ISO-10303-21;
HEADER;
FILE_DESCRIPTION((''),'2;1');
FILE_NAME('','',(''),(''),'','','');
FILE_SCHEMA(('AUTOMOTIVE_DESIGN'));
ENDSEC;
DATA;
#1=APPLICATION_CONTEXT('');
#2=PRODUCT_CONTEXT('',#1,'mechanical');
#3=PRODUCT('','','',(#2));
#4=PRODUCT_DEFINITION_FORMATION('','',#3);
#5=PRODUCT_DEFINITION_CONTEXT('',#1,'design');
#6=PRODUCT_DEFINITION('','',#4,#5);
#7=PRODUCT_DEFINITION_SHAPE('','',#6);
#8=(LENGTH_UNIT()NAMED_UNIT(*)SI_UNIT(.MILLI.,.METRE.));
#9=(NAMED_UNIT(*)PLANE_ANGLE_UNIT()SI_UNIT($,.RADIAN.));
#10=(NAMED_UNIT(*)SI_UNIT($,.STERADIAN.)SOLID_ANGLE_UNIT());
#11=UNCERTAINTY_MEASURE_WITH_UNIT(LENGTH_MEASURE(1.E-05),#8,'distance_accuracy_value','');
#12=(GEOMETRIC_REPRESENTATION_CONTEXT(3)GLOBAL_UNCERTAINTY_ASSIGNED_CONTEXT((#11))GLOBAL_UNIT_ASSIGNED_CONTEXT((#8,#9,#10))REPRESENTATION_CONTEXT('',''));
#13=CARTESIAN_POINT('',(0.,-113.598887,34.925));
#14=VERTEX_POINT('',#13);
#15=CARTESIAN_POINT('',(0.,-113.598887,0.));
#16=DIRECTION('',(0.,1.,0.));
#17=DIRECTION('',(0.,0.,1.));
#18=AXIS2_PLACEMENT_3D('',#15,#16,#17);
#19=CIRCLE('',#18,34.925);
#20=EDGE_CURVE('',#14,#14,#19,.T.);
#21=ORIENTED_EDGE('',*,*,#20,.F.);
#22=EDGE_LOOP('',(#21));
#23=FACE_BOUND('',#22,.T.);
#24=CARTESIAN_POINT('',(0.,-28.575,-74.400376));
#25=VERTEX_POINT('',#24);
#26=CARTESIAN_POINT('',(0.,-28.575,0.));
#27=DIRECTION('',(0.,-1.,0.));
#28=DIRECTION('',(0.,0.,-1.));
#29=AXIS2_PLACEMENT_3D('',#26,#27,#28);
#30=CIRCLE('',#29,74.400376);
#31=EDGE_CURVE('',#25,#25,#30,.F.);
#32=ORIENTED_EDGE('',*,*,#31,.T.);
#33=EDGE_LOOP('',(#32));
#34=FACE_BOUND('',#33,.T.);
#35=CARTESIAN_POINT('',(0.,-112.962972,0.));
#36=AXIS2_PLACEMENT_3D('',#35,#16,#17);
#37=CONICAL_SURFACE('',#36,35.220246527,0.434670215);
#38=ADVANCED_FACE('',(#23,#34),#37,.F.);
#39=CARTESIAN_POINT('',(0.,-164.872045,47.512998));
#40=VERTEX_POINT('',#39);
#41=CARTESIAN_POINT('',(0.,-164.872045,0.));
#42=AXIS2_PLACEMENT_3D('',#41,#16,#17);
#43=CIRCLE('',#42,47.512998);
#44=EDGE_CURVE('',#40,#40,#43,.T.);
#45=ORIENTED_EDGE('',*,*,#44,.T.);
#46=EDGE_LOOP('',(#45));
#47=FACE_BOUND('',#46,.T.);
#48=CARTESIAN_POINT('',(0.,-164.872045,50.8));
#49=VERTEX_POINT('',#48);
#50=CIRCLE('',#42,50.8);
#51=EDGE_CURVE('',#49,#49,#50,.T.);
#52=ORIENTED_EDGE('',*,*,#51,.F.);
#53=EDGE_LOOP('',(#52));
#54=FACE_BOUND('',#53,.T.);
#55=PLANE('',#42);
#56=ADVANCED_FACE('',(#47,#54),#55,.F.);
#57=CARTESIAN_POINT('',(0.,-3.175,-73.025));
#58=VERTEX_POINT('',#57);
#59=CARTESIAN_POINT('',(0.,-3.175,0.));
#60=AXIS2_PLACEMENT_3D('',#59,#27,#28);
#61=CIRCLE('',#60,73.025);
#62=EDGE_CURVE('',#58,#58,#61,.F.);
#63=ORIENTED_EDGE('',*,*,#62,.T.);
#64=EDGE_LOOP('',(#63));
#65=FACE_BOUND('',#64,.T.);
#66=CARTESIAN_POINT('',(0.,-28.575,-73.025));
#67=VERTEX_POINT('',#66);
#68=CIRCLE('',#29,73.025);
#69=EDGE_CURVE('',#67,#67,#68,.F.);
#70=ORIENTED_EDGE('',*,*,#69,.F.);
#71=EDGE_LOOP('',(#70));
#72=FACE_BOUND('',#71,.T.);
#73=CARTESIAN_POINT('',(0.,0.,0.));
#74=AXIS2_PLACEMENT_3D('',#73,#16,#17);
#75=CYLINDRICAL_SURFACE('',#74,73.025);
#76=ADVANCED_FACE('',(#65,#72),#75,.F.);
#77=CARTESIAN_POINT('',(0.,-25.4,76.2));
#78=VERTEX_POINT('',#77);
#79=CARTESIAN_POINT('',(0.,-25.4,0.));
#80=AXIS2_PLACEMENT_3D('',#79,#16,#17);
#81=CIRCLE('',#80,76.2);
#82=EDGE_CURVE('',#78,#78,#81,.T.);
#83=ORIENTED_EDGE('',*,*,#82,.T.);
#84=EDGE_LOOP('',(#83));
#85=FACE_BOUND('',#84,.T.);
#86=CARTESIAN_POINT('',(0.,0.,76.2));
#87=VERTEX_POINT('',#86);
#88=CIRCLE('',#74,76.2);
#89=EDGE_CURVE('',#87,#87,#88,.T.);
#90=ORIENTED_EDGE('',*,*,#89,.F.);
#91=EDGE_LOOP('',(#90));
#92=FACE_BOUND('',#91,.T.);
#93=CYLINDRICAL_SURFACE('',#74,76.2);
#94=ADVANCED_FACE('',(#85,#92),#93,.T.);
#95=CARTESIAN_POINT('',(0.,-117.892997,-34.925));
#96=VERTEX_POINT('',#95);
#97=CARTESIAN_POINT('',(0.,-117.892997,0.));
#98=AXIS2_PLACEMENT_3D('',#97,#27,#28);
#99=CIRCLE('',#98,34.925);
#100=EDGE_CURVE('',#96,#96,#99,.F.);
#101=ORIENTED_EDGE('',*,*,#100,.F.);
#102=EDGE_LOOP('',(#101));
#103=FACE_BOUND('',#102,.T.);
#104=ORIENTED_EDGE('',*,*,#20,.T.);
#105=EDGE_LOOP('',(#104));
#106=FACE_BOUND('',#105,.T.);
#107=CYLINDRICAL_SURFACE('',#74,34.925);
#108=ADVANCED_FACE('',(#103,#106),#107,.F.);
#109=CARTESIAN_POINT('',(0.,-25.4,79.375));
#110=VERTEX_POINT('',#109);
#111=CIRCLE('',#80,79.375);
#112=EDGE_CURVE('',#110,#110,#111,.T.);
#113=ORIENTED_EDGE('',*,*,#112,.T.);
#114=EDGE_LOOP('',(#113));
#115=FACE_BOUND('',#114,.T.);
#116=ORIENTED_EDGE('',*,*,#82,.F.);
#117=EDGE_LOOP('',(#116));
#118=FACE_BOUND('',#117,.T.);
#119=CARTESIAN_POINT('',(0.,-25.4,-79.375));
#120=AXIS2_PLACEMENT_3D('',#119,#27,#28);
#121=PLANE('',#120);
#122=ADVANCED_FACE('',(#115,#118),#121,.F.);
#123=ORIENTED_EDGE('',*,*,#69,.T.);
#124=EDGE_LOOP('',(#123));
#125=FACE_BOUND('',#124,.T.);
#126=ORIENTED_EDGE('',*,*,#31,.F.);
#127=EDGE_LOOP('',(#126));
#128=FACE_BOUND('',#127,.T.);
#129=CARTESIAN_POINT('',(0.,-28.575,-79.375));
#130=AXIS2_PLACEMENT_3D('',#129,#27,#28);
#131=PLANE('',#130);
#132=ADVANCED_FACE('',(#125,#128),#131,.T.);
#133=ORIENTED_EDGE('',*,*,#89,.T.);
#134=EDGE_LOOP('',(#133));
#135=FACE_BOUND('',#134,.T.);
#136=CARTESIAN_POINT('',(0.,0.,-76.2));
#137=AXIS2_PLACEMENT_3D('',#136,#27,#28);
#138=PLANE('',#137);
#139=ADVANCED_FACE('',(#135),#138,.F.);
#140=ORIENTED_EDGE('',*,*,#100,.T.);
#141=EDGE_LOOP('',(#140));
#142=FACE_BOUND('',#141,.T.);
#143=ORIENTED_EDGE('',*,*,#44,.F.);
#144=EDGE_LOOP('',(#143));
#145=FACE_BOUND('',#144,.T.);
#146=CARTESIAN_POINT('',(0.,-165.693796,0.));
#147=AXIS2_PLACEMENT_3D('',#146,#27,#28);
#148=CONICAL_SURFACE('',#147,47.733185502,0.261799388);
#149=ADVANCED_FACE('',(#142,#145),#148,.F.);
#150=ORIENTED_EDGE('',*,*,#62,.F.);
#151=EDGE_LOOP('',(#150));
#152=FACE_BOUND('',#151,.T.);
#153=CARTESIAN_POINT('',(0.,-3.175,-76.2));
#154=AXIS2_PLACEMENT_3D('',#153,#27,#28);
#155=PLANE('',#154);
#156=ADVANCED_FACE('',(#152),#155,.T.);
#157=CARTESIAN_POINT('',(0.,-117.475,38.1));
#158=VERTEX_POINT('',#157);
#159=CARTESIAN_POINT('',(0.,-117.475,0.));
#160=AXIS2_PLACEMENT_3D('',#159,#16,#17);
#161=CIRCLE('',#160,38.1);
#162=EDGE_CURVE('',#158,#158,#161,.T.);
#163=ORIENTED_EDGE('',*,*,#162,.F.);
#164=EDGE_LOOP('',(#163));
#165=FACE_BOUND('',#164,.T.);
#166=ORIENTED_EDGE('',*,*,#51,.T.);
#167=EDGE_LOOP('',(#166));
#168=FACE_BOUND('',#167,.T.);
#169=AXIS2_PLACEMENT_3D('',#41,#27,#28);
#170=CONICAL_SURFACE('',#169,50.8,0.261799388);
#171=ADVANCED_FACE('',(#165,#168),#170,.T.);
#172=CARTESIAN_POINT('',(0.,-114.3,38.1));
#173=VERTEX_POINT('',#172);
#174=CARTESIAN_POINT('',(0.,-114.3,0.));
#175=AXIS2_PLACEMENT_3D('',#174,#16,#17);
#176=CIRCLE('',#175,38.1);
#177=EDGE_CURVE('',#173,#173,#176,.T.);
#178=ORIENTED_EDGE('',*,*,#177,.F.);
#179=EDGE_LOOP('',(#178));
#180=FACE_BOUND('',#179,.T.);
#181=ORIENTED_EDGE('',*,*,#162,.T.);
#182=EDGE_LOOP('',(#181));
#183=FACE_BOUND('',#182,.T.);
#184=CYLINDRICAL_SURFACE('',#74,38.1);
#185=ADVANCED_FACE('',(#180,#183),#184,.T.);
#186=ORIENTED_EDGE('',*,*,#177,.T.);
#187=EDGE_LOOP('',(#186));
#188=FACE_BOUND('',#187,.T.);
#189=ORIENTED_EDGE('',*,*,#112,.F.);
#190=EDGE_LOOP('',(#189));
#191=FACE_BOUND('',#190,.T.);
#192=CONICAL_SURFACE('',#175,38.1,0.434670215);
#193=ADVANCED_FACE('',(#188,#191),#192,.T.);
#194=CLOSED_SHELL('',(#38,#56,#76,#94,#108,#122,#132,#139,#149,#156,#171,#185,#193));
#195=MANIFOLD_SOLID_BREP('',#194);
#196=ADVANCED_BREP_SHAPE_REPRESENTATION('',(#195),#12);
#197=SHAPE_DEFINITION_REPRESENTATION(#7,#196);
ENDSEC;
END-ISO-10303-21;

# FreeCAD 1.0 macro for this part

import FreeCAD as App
import Part
import Sketcher
from FreeCAD import Vector
Q = App.Units.Quantity


def faces_at(feature, points):
    """Names of the faces that lie closest to the given points."""
    faces = feature.Shape.Faces
    near = lambda p: min(range(len(faces)), key=lambda i: faces[i].distToShape(Part.Vertex(*p))[0])
    return sorted({f"Face{near(p) + 1}" for p in points})

doc = App.newDocument("Part")
body = doc.addObject("PartDesign::Body", "Body")

# Sketch on YZ plane
sketch1 = doc.addObject("Sketcher::SketchObject", "Sketch")
body.addObject(sketch1)
sketch1.AttachmentSupport = (doc.YZ_Plane, [""])
sketch1.MapMode = "FlatFace"
sketch1.addGeometry(Part.LineSegment(Vector(0, 0, 0), Vector(-164.9, 0, 0)), False)
sketch1.addGeometry(Part.LineSegment(Vector(-164.9, 0, 0), Vector(-164.9, -50.8, 0)), False)
sketch1.addGeometry(Part.LineSegment(Vector(-164.9, -50.8, 0), Vector(-117.5, -38.1, 0)), False)
sketch1.addGeometry(Part.LineSegment(Vector(-117.5, -38.1, 0), Vector(-114.3, -38.1, 0)), False)
sketch1.addGeometry(Part.LineSegment(Vector(-114.3, -38.1, 0), Vector(-25.4, -79.4, 0)), False)
sketch1.addGeometry(Part.LineSegment(Vector(-25.4, -79.4, 0), Vector(-25.4, -76.2, 0)), False)
sketch1.addGeometry(Part.LineSegment(Vector(-25.4, -76.2, 0), Vector(0, -76.2, 0)), False)
sketch1.addGeometry(Part.LineSegment(Vector(0, -76.2, 0), Vector(0, 0, 0)), False)
sketch1.addConstraint(Sketcher.Constraint("Coincident", 0, 2, 1, 1))
sketch1.addConstraint(Sketcher.Constraint("Coincident", 1, 2, 2, 1))
sketch1.addConstraint(Sketcher.Constraint("Coincident", 2, 2, 3, 1))
sketch1.addConstraint(Sketcher.Constraint("Coincident", 3, 2, 4, 1))
sketch1.addConstraint(Sketcher.Constraint("Coincident", 4, 2, 5, 1))
sketch1.addConstraint(Sketcher.Constraint("Coincident", 5, 2, 6, 1))
sketch1.addConstraint(Sketcher.Constraint("Coincident", 6, 2, 7, 1))
sketch1.addConstraint(Sketcher.Constraint("Coincident", 7, 2, 0, 1))
sketch1.addConstraint(Sketcher.Constraint("Horizontal", 0))
sketch1.addConstraint(Sketcher.Constraint("Vertical", 1))
sketch1.addConstraint(Sketcher.Constraint("Horizontal", 3))
sketch1.addConstraint(Sketcher.Constraint("Vertical", 5))
sketch1.addConstraint(Sketcher.Constraint("Horizontal", 6))
sketch1.addConstraint(Sketcher.Constraint("Vertical", 7))
sketch1.addConstraint(Sketcher.Constraint("Coincident", 7, 2, -1, 1))
sketch1.addConstraint(Sketcher.Constraint("Equal", 3, 5))
sketch1.addConstraint(Sketcher.Constraint("DistanceX", 6, 1, 6, 2, Q("1 in")))
sketch1.addConstraint(Sketcher.Constraint("DistanceY", 1, 2, 1, 1, Q("2 in")))
sketch1.addConstraint(Sketcher.Constraint("DistanceY", 7, 1, 7, 2, Q("3 in")))
sketch1.addConstraint(Sketcher.Constraint("Angle", 2, Q("15 deg")))
sketch1.addConstraint(Sketcher.Constraint("DistanceY", 2, 2, -1, 1, Q("1.5 in")))
sketch1.addConstraint(Sketcher.Constraint("DistanceX", 3, 2, -1, 1, Q("4.5 in")))
sketch1.addConstraint(Sketcher.Constraint("DistanceX", 3, 1, 3, 2, Q("0.125 in")))
revolution = doc.addObject("PartDesign::Revolution", "Revolution")
body.addObject(revolution)
revolution.Profile = sketch1
revolution.ReferenceAxis = (sketch1, ["H_Axis"])
revolution.Angle = 360
doc.recompute()

thickness = doc.addObject("PartDesign::Thickness", "Thickness")
body.addObject(thickness)
thickness.Base = (revolution, faces_at(revolution, [(0, -164.872, 0)]))
thickness.Value = Q("0.125 in")
thickness.Reversed = True
thickness.Join = "Intersection"

doc.recompute()
